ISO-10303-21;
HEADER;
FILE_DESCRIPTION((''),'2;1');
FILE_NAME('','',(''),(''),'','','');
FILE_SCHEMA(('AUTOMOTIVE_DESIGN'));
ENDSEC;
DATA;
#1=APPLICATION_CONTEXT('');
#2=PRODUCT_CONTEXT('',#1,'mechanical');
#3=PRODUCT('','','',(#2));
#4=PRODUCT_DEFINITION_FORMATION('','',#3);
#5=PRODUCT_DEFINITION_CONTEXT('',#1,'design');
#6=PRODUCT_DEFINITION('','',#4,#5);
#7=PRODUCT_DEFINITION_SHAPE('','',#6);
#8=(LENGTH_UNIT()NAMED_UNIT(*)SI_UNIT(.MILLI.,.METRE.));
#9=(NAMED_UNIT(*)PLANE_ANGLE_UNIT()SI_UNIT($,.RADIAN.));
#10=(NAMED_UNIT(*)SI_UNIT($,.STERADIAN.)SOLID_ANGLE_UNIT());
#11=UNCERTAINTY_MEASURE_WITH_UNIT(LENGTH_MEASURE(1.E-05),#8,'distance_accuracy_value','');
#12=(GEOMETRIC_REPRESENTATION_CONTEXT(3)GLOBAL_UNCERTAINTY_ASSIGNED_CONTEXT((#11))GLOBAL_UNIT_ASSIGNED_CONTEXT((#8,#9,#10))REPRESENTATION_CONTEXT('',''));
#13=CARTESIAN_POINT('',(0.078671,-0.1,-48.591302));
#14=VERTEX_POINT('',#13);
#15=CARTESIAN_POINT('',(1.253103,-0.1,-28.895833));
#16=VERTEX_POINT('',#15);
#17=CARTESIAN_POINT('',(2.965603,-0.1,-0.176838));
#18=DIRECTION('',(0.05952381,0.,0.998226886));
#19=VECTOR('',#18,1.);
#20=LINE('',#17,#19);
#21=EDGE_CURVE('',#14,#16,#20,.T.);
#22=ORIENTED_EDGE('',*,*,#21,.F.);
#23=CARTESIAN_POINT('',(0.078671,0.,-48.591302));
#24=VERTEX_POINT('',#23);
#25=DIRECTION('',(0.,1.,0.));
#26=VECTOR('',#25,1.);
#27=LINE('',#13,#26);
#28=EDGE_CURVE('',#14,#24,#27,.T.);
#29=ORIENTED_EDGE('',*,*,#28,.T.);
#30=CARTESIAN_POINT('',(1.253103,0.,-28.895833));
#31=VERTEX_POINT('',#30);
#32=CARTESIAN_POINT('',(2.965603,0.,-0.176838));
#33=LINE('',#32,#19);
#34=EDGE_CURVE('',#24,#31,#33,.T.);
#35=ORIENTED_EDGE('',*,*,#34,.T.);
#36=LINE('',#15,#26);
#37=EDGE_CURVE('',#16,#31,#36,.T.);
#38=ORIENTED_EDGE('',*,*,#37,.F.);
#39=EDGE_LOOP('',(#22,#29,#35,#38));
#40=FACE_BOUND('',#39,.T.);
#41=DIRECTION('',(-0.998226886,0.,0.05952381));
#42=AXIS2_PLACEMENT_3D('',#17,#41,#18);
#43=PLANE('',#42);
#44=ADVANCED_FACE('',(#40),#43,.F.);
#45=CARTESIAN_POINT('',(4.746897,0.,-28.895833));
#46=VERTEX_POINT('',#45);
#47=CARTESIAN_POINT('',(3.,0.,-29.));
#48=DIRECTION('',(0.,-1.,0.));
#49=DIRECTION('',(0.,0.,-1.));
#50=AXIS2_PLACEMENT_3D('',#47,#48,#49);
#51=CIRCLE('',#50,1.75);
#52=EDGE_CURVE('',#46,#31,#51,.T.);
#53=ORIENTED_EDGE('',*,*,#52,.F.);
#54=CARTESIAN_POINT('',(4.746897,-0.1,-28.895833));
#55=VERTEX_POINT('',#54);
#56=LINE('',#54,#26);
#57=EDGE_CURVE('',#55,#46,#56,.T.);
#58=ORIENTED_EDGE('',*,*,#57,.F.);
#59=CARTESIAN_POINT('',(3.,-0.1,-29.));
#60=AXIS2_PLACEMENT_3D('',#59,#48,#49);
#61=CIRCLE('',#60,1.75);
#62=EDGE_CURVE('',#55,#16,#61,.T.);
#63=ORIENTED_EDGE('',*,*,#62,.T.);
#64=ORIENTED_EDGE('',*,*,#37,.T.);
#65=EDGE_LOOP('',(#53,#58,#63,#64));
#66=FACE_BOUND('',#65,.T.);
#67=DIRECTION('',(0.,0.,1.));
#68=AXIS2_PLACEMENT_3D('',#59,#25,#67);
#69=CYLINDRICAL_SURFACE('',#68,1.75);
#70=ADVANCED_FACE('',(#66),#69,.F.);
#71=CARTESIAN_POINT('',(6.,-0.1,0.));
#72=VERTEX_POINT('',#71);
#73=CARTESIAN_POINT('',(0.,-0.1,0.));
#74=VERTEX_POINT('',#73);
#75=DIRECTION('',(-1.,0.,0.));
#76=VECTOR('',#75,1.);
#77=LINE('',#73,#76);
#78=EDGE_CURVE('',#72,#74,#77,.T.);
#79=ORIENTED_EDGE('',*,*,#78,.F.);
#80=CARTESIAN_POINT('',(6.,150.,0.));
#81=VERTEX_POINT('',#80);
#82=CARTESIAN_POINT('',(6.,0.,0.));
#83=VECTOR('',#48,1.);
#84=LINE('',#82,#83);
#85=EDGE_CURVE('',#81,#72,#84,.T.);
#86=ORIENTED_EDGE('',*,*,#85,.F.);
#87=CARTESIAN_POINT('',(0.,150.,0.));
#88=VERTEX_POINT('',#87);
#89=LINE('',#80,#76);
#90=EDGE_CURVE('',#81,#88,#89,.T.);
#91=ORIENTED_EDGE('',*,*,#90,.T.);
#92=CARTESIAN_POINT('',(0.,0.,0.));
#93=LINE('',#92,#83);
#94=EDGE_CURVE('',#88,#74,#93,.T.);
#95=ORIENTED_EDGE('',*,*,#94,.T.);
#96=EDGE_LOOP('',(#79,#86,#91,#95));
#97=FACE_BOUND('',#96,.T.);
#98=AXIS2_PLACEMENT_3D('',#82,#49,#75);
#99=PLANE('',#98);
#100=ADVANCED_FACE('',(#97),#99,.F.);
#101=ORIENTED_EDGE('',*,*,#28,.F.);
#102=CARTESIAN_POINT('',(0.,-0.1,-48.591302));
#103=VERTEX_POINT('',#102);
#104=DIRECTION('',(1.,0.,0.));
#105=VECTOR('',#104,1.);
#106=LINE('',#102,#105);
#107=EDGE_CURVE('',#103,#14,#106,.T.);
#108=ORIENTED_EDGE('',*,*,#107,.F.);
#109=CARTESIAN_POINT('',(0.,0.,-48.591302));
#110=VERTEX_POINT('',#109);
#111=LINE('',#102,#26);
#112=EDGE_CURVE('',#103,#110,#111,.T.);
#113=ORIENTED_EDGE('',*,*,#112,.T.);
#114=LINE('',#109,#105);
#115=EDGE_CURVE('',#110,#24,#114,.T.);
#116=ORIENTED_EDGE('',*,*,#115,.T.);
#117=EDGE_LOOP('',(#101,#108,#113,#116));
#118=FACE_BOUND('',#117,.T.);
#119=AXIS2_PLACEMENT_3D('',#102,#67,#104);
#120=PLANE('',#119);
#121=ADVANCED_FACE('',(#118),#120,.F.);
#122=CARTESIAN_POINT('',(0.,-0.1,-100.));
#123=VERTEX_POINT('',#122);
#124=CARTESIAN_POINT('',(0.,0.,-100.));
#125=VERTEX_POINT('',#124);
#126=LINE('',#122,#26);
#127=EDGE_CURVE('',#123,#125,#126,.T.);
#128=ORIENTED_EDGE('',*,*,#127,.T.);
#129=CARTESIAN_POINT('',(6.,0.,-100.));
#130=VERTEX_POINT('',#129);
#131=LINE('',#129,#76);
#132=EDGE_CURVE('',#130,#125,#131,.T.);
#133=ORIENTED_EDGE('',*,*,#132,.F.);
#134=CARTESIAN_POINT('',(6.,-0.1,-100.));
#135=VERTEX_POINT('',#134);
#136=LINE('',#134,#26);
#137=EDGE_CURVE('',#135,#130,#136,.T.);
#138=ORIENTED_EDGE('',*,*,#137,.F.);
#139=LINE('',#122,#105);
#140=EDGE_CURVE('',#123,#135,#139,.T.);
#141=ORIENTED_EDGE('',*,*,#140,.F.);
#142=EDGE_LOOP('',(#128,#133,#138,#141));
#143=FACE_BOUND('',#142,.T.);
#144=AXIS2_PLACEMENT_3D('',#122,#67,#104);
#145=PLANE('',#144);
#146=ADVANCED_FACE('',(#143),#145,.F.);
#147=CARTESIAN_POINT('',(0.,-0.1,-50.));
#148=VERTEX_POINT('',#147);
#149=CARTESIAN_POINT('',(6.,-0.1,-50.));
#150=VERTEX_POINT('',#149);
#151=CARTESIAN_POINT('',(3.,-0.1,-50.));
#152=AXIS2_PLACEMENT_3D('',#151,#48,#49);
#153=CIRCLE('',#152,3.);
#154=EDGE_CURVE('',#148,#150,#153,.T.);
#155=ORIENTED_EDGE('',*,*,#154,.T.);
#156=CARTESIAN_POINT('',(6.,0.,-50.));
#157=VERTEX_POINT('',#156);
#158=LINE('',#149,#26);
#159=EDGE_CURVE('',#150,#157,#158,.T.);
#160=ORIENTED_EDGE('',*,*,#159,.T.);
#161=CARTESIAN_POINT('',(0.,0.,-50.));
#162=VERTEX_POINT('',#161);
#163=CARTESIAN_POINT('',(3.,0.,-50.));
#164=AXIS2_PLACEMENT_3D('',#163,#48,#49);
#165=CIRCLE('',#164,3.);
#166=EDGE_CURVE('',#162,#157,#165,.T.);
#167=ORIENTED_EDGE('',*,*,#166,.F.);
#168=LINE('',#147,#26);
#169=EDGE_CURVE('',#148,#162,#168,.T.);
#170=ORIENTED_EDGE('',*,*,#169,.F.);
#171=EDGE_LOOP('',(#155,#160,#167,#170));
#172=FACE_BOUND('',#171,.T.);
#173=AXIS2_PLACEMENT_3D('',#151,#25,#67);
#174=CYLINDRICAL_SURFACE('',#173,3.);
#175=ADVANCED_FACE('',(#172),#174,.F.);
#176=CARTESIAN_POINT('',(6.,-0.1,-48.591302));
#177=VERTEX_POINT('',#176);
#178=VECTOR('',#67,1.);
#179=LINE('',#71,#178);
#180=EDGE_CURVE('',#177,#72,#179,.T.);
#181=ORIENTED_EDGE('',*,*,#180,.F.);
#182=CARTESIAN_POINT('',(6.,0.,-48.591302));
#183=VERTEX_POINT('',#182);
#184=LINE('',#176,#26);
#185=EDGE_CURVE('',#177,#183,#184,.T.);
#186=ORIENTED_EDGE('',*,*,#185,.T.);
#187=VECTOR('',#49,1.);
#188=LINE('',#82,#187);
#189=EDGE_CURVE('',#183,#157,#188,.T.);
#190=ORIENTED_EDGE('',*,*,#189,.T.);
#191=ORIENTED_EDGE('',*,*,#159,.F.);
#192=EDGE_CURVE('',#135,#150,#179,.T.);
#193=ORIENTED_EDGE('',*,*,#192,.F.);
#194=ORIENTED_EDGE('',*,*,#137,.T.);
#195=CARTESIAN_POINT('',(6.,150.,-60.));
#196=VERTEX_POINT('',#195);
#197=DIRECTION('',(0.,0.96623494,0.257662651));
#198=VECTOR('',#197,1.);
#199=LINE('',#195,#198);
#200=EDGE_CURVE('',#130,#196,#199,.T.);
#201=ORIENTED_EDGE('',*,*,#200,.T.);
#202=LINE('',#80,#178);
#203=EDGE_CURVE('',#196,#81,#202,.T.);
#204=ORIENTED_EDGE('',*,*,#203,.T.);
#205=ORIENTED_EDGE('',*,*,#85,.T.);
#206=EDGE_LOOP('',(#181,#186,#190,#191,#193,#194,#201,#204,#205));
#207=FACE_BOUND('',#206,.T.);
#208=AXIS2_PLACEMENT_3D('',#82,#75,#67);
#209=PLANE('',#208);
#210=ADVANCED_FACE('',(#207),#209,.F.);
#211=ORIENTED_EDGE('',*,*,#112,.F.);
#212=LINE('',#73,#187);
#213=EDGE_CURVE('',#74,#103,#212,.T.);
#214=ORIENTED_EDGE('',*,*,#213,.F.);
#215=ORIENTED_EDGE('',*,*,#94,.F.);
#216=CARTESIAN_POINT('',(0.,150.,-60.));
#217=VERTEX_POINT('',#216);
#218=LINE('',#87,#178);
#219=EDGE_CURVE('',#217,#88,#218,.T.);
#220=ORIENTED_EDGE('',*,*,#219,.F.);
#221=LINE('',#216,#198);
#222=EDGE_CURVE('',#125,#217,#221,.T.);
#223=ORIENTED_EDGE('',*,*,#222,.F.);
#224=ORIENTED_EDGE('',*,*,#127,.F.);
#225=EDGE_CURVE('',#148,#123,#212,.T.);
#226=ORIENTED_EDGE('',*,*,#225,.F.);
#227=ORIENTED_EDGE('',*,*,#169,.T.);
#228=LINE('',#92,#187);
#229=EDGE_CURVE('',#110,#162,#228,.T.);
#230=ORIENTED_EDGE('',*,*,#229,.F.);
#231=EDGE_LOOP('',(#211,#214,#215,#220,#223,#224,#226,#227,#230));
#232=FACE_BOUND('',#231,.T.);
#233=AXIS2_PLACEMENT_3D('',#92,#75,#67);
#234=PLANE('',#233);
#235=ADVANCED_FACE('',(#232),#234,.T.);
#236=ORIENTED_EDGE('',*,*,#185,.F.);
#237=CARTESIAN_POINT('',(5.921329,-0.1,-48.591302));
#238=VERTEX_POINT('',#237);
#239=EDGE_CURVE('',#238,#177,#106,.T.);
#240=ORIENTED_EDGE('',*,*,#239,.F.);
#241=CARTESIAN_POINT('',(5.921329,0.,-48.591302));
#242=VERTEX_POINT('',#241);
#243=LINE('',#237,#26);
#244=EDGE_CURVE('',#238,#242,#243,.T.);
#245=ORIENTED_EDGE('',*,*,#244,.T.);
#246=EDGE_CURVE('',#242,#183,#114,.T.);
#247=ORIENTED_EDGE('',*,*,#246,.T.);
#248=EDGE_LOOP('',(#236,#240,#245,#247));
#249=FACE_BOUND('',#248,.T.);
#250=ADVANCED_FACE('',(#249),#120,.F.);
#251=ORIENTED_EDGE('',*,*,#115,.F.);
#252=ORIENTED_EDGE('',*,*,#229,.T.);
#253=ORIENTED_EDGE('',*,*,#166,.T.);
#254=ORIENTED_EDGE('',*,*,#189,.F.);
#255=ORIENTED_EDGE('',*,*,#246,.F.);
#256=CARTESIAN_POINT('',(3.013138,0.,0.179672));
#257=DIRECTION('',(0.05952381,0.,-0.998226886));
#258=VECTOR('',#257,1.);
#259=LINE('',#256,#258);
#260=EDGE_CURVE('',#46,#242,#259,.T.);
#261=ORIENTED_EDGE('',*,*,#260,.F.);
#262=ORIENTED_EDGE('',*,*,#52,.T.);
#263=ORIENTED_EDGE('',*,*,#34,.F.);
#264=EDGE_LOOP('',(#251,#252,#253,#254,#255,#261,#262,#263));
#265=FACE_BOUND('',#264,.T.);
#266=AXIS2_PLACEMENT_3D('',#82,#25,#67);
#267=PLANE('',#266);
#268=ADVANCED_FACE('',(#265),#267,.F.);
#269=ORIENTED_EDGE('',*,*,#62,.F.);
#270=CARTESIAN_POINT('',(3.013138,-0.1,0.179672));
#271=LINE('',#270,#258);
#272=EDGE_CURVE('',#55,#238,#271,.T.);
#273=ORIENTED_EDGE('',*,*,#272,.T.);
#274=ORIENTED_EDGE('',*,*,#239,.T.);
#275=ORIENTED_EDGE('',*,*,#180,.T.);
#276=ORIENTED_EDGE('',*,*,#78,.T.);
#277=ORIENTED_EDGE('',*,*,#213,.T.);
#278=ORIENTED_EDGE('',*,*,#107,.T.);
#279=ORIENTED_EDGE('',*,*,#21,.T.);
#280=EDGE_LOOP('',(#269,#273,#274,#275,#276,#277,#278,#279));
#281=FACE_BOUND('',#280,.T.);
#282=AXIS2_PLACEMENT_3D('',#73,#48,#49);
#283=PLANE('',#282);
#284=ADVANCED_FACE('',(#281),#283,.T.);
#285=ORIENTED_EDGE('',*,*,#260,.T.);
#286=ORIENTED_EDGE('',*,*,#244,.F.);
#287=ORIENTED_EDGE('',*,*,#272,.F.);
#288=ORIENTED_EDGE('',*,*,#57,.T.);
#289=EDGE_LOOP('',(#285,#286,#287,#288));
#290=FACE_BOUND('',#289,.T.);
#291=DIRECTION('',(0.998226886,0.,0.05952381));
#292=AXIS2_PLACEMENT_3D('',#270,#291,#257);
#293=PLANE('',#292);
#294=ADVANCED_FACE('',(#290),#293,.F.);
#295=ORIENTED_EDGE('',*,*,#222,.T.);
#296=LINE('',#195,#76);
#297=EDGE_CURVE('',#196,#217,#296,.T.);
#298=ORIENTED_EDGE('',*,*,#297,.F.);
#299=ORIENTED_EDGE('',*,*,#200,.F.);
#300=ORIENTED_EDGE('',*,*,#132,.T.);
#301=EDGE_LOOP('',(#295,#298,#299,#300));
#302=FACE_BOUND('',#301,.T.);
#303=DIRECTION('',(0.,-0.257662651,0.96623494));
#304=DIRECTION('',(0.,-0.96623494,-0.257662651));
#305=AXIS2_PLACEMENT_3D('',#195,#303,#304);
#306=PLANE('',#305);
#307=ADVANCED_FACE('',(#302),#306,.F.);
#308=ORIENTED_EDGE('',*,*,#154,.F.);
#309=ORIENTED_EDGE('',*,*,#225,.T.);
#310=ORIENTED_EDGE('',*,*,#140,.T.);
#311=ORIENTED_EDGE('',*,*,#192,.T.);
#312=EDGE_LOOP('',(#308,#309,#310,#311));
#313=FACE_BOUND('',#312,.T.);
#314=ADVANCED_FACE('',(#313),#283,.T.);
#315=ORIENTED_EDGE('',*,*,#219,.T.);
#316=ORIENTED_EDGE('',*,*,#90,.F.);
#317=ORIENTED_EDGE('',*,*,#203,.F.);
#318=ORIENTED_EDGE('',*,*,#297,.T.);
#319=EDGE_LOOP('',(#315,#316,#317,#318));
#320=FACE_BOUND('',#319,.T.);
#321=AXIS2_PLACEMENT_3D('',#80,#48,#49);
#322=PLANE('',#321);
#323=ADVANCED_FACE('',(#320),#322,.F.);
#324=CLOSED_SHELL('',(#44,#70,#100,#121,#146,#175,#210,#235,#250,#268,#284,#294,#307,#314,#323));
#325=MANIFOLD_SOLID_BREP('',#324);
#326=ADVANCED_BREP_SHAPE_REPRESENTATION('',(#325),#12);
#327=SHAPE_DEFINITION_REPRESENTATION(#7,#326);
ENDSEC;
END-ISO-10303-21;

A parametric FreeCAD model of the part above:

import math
import FreeCAD as App
import Part
import Sketcher
Q = App.Units.Quantity


def add_polygon(sketch, points):
    """Adds a closed chain of lines whose ends are joined by coincident constraints."""
    first, n = sketch.GeometryCount, len(points)
    for a, b in zip(points, points[1:] + points[:1]):
        sketch.addGeometry(Part.LineSegment(App.Vector(*a, 0), App.Vector(*b, 0)), False)
    for i in range(n):
        sketch.addConstraint(Sketcher.Constraint("Coincident", first + i, 2, first + (i + 1) % n, 1))

doc = App.newDocument("Part")
body = doc.addObject("PartDesign::Body", "Body")

sketch1 = body.newObject("Sketcher::SketchObject", "Sketch")
sketch1.AttachmentSupport = (doc.getObject("YZ_Plane"), [""])
sketch1.MapMode = "FlatFace"
add_polygon(sketch1, [(0, 0), (0, -100), (150, -60), (150, 0)])
sketch1.addConstraint([
    Sketcher.Constraint("Vertical", 0),
    Sketcher.Constraint("Vertical", 2),
    Sketcher.Constraint("Horizontal", 3),
    Sketcher.Constraint("Coincident", 3, 2, -1, 1),
    Sketcher.Constraint("DistanceX", 3, 2, 3, 1, Q("150 mm")),
    Sketcher.Constraint("DistanceY", 0, 2, 0, 1, Q("100 mm")),
    Sketcher.Constraint("DistanceY", 2, 1, 2, 2, Q("60 mm")),
])
pad1 = body.newObject("PartDesign::Pad", "Pad")
pad1.Profile = sketch1
pad1.Length = 6

sketch2 = body.newObject("Sketcher::SketchObject", "Sketch001")
sketch2.AttachmentSupport = (doc.getObject("XZ_Plane"), [""])
sketch2.MapMode = "FlatFace"
sketch2.addGeometry([
    Part.LineSegment(App.Vector(0, 0, 0), App.Vector(0, -48.591302, 0)),
    Part.LineSegment(App.Vector(0, -48.591302, 0), App.Vector(0.078671, -48.591302, 0)),
    Part.LineSegment(App.Vector(0.078671, -48.591302, 0), App.Vector(1.253103, -28.895833, 0)),
    Part.ArcOfCircle(Part.Circle(App.Vector(3, -29, 0), App.Vector(0, 0, 1), 1.75), math.radians(90), math.radians(176.58752)),
    Part.ArcOfCircle(Part.Circle(App.Vector(3, -29, 0), App.Vector(0, 0, 1), 1.75), math.radians(3.41248), math.radians(90)),
    Part.LineSegment(App.Vector(4.746897, -28.895833, 0), App.Vector(5.921329, -48.591302, 0)),
    Part.LineSegment(App.Vector(5.921329, -48.591302, 0), App.Vector(6, -48.591302, 0)),
    Part.LineSegment(App.Vector(6, -48.591302, 0), App.Vector(6, 0, 0)),
    Part.LineSegment(App.Vector(6, 0, 0), App.Vector(0, 0, 0)),
    Part.LineSegment(App.Vector(6, -100, 0), App.Vector(6, -50, 0)),
    Part.ArcOfCircle(Part.Circle(App.Vector(3, -50, 0), App.Vector(0, 0, 1), 3), math.radians(-90), math.radians(0)),
    Part.ArcOfCircle(Part.Circle(App.Vector(3, -50, 0), App.Vector(0, 0, 1), 3), math.radians(180), math.radians(270)),
    Part.LineSegment(App.Vector(0, -50, 0), App.Vector(0, -100, 0)),
    Part.LineSegment(App.Vector(0, -100, 0), App.Vector(6, -100, 0)),
], False)
sketch2.addConstraint([
    Sketcher.Constraint("Coincident", 0, 2, 1, 1),
    Sketcher.Constraint("Coincident", 1, 2, 2, 1),
    Sketcher.Constraint("Tangent", 2, 2, 3, 2),
    Sketcher.Constraint("Tangent", 3, 1, 4, 2),
    Sketcher.Constraint("Tangent", 4, 1, 5, 1),
    Sketcher.Constraint("Coincident", 5, 2, 6, 1),
    Sketcher.Constraint("Coincident", 6, 2, 7, 1),
    Sketcher.Constraint("Coincident", 7, 2, 8, 1),
    Sketcher.Constraint("Coincident", 8, 2, 0, 1),
    Sketcher.Constraint("Tangent", 9, 2, 10, 2),
    Sketcher.Constraint("Tangent", 10, 1, 11, 2),
    Sketcher.Constraint("Tangent", 11, 1, 12, 1),
    Sketcher.Constraint("Coincident", 12, 2, 13, 1),
    Sketcher.Constraint("Coincident", 13, 2, 9, 1),
    Sketcher.Constraint("Vertical", 0),
    Sketcher.Constraint("Horizontal", 1),
    Sketcher.Constraint("Horizontal", 6),
    Sketcher.Constraint("Vertical", 7),
    Sketcher.Constraint("Horizontal", 8),
    Sketcher.Constraint("Vertical", 9),
    Sketcher.Constraint("Vertical", 12),
    Sketcher.Constraint("Horizontal", 13),
    Sketcher.Constraint("Coincident", 8, 2, -1, 1),
    Sketcher.Constraint("Equal", 3, 4),
    Sketcher.Constraint("Equal", 10, 11),
    Sketcher.Constraint("PointOnObject", 11, 1, -2),
    Sketcher.Constraint("Horizontal", 2, 2, 4, 1),
    Sketcher.Constraint("Horizontal", 1, 2, 5, 2),
    Sketcher.Constraint("Vertical", 4, 3, 10, 3),
    Sketcher.Constraint("Vertical", 11, 3, 3, 1),
    Sketcher.Constraint("Vertical", 7, 2, 9, 2),
    Sketcher.Constraint("Vertical", 3, 1, 10, 1),
    Sketcher.Constraint("Radius", 10, Q("3 mm")),
    Sketcher.Constraint("DistanceY", 9, 1, 9, 2, Q("50 mm")),
    Sketcher.Constraint("Radius", 3, Q("1.75 mm")),
    Sketcher.Constraint("DistanceY", 3, 3, -1, 1, Q("29 mm")),
    Sketcher.Constraint("DistanceY", 10, 3, -1, 1, Q("50 mm")),
    Sketcher.Constraint("DistanceX", 1, 1, 1, 2, Q("0.078671 mm")),
    Sketcher.Constraint("DistanceY", 0, 2, 0, 1, Q("48.591302 mm")),
])
pad2 = body.newObject("PartDesign::Pad", "Pad001")
pad2.Profile = sketch2
pad2.Length = 0.1

doc.recompute()
